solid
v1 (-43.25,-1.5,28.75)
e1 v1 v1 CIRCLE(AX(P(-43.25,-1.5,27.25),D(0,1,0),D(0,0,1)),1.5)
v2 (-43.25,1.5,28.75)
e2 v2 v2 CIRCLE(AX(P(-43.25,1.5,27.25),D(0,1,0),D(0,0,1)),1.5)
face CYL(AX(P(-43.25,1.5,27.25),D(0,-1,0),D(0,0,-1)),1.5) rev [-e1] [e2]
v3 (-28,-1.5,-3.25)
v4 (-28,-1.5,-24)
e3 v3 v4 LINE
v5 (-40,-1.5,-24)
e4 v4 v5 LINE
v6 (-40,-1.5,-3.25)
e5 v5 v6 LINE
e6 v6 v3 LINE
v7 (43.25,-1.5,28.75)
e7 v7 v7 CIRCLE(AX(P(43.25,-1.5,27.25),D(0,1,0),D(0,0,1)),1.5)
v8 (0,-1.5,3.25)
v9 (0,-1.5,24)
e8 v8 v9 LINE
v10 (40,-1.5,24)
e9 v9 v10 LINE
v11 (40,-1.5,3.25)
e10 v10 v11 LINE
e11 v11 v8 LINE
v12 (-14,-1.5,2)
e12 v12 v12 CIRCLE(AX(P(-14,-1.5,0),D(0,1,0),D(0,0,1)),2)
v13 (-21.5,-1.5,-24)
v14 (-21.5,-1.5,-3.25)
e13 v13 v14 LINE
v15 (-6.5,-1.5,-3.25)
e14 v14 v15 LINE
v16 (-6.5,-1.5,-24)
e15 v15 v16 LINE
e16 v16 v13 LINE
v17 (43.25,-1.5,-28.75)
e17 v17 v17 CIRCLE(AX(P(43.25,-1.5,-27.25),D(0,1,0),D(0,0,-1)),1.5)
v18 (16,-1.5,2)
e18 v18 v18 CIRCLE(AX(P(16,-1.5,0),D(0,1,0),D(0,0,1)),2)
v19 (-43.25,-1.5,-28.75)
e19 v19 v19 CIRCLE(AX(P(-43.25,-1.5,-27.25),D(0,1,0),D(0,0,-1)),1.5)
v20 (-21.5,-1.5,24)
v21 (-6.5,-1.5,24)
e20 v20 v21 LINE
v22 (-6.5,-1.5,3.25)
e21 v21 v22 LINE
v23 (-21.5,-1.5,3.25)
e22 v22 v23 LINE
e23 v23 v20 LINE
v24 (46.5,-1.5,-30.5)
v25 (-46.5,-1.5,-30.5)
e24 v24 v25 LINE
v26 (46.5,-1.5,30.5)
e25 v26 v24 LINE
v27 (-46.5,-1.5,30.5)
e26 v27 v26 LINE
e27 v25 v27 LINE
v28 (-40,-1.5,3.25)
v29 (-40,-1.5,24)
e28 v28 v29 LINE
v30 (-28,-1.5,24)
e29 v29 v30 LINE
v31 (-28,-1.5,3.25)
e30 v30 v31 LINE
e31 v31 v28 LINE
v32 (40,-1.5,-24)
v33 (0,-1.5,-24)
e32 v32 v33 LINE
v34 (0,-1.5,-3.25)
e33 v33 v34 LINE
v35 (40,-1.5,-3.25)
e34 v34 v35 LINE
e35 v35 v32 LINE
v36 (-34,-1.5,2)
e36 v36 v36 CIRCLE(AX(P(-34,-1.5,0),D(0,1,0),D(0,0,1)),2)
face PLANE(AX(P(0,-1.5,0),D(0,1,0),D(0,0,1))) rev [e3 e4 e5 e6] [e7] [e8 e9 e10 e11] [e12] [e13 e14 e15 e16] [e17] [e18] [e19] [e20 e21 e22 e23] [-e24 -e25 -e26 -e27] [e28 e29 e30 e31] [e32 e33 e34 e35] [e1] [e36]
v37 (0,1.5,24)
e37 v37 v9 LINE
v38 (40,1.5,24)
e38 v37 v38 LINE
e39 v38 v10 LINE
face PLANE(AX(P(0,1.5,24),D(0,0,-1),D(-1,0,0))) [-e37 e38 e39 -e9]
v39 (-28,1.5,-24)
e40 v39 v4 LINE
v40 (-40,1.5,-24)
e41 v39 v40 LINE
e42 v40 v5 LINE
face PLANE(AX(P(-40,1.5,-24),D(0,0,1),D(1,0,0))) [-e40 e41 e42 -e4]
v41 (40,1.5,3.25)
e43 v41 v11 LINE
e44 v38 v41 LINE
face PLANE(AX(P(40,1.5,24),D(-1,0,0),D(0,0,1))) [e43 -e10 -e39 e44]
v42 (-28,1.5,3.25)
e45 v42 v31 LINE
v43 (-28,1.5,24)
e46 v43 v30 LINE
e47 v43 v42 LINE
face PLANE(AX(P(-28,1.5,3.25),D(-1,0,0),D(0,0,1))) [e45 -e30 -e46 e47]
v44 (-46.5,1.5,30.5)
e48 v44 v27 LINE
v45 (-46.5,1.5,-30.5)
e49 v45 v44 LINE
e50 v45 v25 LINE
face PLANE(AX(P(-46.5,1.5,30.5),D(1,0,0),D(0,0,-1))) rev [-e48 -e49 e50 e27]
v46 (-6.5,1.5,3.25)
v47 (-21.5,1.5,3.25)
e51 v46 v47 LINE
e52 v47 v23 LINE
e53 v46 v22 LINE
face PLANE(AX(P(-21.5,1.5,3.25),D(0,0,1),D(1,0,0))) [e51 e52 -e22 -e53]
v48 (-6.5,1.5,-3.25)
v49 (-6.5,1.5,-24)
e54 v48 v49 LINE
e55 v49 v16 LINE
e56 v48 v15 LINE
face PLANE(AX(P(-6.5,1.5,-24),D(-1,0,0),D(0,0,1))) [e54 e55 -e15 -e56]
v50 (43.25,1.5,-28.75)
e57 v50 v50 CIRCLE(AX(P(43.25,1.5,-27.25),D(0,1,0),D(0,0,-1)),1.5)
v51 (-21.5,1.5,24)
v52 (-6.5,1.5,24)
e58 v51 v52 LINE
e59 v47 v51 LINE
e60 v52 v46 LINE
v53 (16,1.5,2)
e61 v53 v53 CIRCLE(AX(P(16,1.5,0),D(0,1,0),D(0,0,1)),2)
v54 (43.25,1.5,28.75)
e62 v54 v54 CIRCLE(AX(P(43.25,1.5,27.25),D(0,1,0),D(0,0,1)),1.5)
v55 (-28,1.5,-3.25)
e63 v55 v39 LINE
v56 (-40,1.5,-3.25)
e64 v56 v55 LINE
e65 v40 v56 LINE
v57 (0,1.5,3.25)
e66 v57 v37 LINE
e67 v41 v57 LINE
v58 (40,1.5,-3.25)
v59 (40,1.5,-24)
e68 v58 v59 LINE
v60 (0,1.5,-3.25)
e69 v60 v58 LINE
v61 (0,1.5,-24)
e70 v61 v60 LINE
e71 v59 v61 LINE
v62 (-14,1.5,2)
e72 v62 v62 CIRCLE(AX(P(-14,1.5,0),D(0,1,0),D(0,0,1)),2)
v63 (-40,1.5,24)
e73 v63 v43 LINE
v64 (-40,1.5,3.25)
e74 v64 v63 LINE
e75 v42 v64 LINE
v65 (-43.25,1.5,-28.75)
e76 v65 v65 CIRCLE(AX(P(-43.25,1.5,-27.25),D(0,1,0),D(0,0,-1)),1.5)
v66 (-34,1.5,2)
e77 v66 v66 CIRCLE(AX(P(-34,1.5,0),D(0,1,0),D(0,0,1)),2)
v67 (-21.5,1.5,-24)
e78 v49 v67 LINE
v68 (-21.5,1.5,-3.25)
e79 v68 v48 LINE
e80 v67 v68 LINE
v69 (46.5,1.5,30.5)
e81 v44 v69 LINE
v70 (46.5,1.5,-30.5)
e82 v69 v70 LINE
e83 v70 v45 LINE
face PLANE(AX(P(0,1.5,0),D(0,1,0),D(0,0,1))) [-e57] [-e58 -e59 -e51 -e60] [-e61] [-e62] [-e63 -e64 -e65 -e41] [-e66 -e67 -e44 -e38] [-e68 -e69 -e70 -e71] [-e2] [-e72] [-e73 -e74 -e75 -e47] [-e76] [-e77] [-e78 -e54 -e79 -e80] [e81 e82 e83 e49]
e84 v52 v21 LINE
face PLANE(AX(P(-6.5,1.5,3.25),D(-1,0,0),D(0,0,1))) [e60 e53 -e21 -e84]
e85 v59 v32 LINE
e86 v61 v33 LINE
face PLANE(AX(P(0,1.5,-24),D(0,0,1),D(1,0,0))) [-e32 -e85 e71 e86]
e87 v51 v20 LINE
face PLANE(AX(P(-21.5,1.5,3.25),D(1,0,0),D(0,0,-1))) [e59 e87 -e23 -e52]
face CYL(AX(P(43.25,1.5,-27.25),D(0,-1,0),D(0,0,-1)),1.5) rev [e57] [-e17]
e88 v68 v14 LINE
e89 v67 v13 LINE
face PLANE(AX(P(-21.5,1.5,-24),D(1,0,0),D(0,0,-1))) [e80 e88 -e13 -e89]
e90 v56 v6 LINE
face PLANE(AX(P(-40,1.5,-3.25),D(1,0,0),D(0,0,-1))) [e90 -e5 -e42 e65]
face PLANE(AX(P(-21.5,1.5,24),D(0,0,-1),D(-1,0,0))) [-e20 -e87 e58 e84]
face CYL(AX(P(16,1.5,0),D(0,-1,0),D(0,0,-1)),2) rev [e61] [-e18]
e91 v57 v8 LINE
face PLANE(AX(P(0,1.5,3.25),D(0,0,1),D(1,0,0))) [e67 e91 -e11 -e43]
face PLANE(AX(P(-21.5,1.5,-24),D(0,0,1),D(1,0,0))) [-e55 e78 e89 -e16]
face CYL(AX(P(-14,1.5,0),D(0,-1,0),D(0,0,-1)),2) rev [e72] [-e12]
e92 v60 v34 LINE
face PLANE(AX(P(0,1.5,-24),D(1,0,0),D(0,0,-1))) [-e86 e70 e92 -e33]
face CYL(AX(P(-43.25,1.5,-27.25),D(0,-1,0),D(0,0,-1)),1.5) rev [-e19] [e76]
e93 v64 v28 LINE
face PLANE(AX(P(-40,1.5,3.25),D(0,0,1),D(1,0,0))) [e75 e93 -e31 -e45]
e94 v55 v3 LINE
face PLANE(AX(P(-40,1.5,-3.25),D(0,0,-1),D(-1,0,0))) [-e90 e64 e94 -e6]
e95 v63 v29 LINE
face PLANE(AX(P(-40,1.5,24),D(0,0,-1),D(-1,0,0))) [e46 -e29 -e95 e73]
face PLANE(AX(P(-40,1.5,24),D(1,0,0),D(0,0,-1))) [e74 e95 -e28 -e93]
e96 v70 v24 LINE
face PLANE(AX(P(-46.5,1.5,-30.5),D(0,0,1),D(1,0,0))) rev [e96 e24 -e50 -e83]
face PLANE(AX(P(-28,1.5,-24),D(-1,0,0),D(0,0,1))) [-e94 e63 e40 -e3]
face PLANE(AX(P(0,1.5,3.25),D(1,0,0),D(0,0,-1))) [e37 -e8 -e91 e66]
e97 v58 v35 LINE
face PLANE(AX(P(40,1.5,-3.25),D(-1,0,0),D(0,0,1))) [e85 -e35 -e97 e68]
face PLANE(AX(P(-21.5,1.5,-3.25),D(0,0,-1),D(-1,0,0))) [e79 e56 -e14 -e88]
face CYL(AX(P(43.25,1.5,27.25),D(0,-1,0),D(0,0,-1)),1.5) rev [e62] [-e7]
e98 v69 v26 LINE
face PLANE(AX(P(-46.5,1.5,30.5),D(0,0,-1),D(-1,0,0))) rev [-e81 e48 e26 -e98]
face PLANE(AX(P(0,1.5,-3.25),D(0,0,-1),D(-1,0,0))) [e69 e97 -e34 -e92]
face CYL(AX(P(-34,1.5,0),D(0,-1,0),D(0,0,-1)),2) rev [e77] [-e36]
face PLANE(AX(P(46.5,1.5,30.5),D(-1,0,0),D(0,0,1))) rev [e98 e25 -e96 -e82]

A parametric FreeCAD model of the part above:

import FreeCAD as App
import Part
import Sketcher

V = App.Vector

doc = App.newDocument("Part")
body = doc.addObject("PartDesign::Body", "Body")

# Sketch on XZ plane
sketch1 = doc.addObject("Sketcher::SketchObject", "Sketch")
body.addObject(sketch1)
sketch1.AttachmentSupport = (doc.XZ_Plane, [""])
sketch1.MapMode = "FlatFace"
sketch1.addGeometry(Part.LineSegment(V(-46.5, -30.5, 0), V(-46.5, 30.5, 0)), False)
sketch1.addGeometry(Part.LineSegment(V(-46.5, 30.5, 0), V(46.5, 30.5, 0)), False)
sketch1.addGeometry(Part.LineSegment(V(46.5, 30.5, 0), V(46.5, -30.5, 0)), False)
sketch1.addGeometry(Part.LineSegment(V(46.5, -30.5, 0), V(-46.5, -30.5, 0)), False)
sketch1.addGeometry(Part.Circle(V(-43.2, 27.2, 0), V(0, 0, 1), 1.5), False)
sketch1.addGeometry(Part.LineSegment(V(-28, 24, 0), V(-40, 24, 0)), False)
sketch1.addGeometry(Part.LineSegment(V(-40, 24, 0), V(-40, 3.2, 0)), False)
sketch1.addGeometry(Part.LineSegment(V(-40, 3.2, 0), V(-28, 3.2, 0)), False)
sketch1.addGeometry(Part.LineSegment(V(-28, 3.2, 0), V(-28, 24, 0)), False)
sketch1.addGeometry(Part.LineSegment(V(-6.5, 24, 0), V(-21.5, 24, 0)), False)
sketch1.addGeometry(Part.LineSegment(V(-21.5, 24, 0), V(-21.5, 3.2, 0)), False)
sketch1.addGeometry(Part.LineSegment(V(-21.5, 3.2, 0), V(-6.5, 3.2, 0)), False)
sketch1.addGeometry(Part.LineSegment(V(-6.5, 3.2, 0), V(-6.5, 24, 0)), False)
sketch1.addGeometry(Part.Circle(V(43.2, 27.2, 0), V(0, 0, 1), 1.5), False)
sketch1.addGeometry(Part.LineSegment(V(40, 24, 0), V(0, 24, 0)), False)
sketch1.addGeometry(Part.LineSegment(V(0, 24, 0), V(0, 3.2, 0)), False)
sketch1.addGeometry(Part.LineSegment(V(0, 3.2, 0), V(40, 3.2, 0)), False)
sketch1.addGeometry(Part.LineSegment(V(40, 3.2, 0), V(40, 24, 0)), False)
sketch1.addGeometry(Part.Circle(V(-34, 0, 0), V(0, 0, 1), 2), False)
sketch1.addGeometry(Part.LineSegment(V(-28, -3.2, 0), V(-40, -3.2, 0)), False)
sketch1.addGeometry(Part.LineSegment(V(-40, -3.2, 0), V(-40, -24, 0)), False)
sketch1.addGeometry(Part.LineSegment(V(-40, -24, 0), V(-28, -24, 0)), False)
sketch1.addGeometry(Part.LineSegment(V(-28, -24, 0), V(-28, -3.2, 0)), False)
sketch1.addGeometry(Part.Circle(V(-14, 0, 0), V(0, 0, 1), 2), False)
sketch1.addGeometry(Part.LineSegment(V(-6.5, -3.2, 0), V(-21.5, -3.2, 0)), False)
sketch1.addGeometry(Part.LineSegment(V(-21.5, -3.2, 0), V(-21.5, -24, 0)), False)
sketch1.addGeometry(Part.LineSegment(V(-21.5, -24, 0), V(-6.5, -24, 0)), False)
sketch1.addGeometry(Part.LineSegment(V(-6.5, -24, 0), V(-6.5, -3.2, 0)), False)
sketch1.addGeometry(Part.Circle(V(-43.2, -27.2, 0), V(0, 0, 1), 1.5), False)
sketch1.addGeometry(Part.Circle(V(16, 0, 0), V(0, 0, 1), 2), False)
sketch1.addGeometry(Part.LineSegment(V(40, -3.2, 0), V(0, -3.2, 0)), False)
sketch1.addGeometry(Part.LineSegment(V(0, -3.2, 0), V(0, -24, 0)), False)
sketch1.addGeometry(Part.LineSegment(V(0, -24, 0), V(40, -24, 0)), False)
sketch1.addGeometry(Part.LineSegment(V(40, -24, 0), V(40, -3.2, 0)), False)
sketch1.addGeometry(Part.Circle(V(43.2, -27.2, 0), V(0, 0, 1), 1.5), False)
sketch1.addConstraint(Sketcher.Constraint("Coincident", 0, 2, 1, 1))
sketch1.addConstraint(Sketcher.Constraint("Coincident", 1, 2, 2, 1))
sketch1.addConstraint(Sketcher.Constraint("Coincident", 2, 2, 3, 1))
sketch1.addConstraint(Sketcher.Constraint("Coincident", 3, 2, 0, 1))
sketch1.addConstraint(Sketcher.Constraint("Coincident", 5, 2, 6, 1))
sketch1.addConstraint(Sketcher.Constraint("Coincident", 6, 2, 7, 1))
sketch1.addConstraint(Sketcher.Constraint("Coincident", 7, 2, 8, 1))
sketch1.addConstraint(Sketcher.Constraint("Coincident", 8, 2, 5, 1))
sketch1.addConstraint(Sketcher.Constraint("Coincident", 9, 2, 10, 1))
sketch1.addConstraint(Sketcher.Constraint("Coincident", 10, 2, 11, 1))
sketch1.addConstraint(Sketcher.Constraint("Coincident", 11, 2, 12, 1))
sketch1.addConstraint(Sketcher.Constraint("Coincident", 12, 2, 9, 1))
sketch1.addConstraint(Sketcher.Constraint("Coincident", 14, 2, 15, 1))
sketch1.addConstraint(Sketcher.Constraint("Coincident", 15, 2, 16, 1))
sketch1.addConstraint(Sketcher.Constraint("Coincident", 16, 2, 17, 1))
sketch1.addConstraint(Sketcher.Constraint("Coincident", 17, 2, 14, 1))
sketch1.addConstraint(Sketcher.Constraint("Coincident", 19, 2, 20, 1))
sketch1.addConstraint(Sketcher.Constraint("Coincident", 20, 2, 21, 1))
sketch1.addConstraint(Sketcher.Constraint("Coincident", 21, 2, 22, 1))
sketch1.addConstraint(Sketcher.Constraint("Coincident", 22, 2, 19, 1))
sketch1.addConstraint(Sketcher.Constraint("Coincident", 24, 2, 25, 1))
sketch1.addConstraint(Sketcher.Constraint("Coincident", 25, 2, 26, 1))
sketch1.addConstraint(Sketcher.Constraint("Coincident", 26, 2, 27, 1))
sketch1.addConstraint(Sketcher.Constraint("Coincident", 27, 2, 24, 1))
sketch1.addConstraint(Sketcher.Constraint("Coincident", 30, 2, 31, 1))
sketch1.addConstraint(Sketcher.Constraint("Coincident", 31, 2, 32, 1))
sketch1.addConstraint(Sketcher.Constraint("Coincident", 32, 2, 33, 1))
sketch1.addConstraint(Sketcher.Constraint("Coincident", 33, 2, 30, 1))
sketch1.addConstraint(Sketcher.Constraint("Vertical", 0))
sketch1.addConstraint(Sketcher.Constraint("Horizontal", 1))
sketch1.addConstraint(Sketcher.Constraint("Vertical", 2))
sketch1.addConstraint(Sketcher.Constraint("Horizontal", 3))
sketch1.addConstraint(Sketcher.Constraint("Horizontal", 5))
sketch1.addConstraint(Sketcher.Constraint("Vertical", 6))
sketch1.addConstraint(Sketcher.Constraint("Horizontal", 7))
sketch1.addConstraint(Sketcher.Constraint("Vertical", 8))
sketch1.addConstraint(Sketcher.Constraint("Horizontal", 9))
sketch1.addConstraint(Sketcher.Constraint("Vertical", 10))
sketch1.addConstraint(Sketcher.Constraint("Horizontal", 11))
sketch1.addConstraint(Sketcher.Constraint("Vertical", 12))
sketch1.addConstraint(Sketcher.Constraint("Horizontal", 14))
sketch1.addConstraint(Sketcher.Constraint("Vertical", 15))
sketch1.addConstraint(Sketcher.Constraint("Horizontal", 16))
sketch1.addConstraint(Sketcher.Constraint("Vertical", 17))
sketch1.addConstraint(Sketcher.Constraint("Horizontal", 19))
sketch1.addConstraint(Sketcher.Constraint("Vertical", 20))
sketch1.addConstraint(Sketcher.Constraint("Horizontal", 21))
sketch1.addConstraint(Sketcher.Constraint("Vertical", 22))
sketch1.addConstraint(Sketcher.Constraint("Horizontal", 24))
sketch1.addConstraint(Sketcher.Constraint("Vertical", 25))
sketch1.addConstraint(Sketcher.Constraint("Horizontal", 26))
sketch1.addConstraint(Sketcher.Constraint("Vertical", 27))
sketch1.addConstraint(Sketcher.Constraint("Horizontal", 30))
sketch1.addConstraint(Sketcher.Constraint("Vertical", 31))
sketch1.addConstraint(Sketcher.Constraint("Horizontal", 32))
sketch1.addConstraint(Sketcher.Constraint("Vertical", 33))
sketch1.addConstraint(Sketcher.Constraint("Equal", 4, 13))
sketch1.addConstraint(Sketcher.Constraint("Equal", 18, 23))
sketch1.addConstraint(Sketcher.Constraint("Equal", 13, 28))
sketch1.addConstraint(Sketcher.Constraint("Equal", 23, 29))
sketch1.addConstraint(Sketcher.Constraint("Equal", 28, 34))
sketch1.addConstraint(Sketcher.Constraint("Symmetric", 13, 3, 28, 3, -1, 1))
sketch1.addConstraint(Sketcher.Constraint("Symmetric", 4, 3, 34, 3, -1, 1))
sketch1.addConstraint(Sketcher.Constraint("Symmetric", 0, 2, 2, 2, -1, 1))
sketch1.addConstraint(Sketcher.Constraint("Symmetric", 16, 2, 19, 2, -1, 1))
sketch1.addConstraint(Sketcher.Constraint("Symmetric", 15, 2, 30, 2, -1, 1))
sketch1.addConstraint(Sketcher.Constraint("Symmetric", 5, 2, 32, 2, -1, 1))
sketch1.addConstraint(Sketcher.Constraint("Symmetric", 4, 3, 13, 3, -2))
sketch1.addConstraint(Sketcher.Constraint("Symmetric", 6, 2, 16, 2, -2))
sketch1.addConstraint(Sketcher.Constraint("Symmetric", 8, 2, 21, 2, -1))
sketch1.addConstraint(Sketcher.Constraint("Symmetric", 10, 2, 24, 2, -1))
sketch1.addConstraint(Sketcher.Constraint("Symmetric", 12, 2, 26, 2, -1))
sketch1.addConstraint(Sketcher.Constraint("Symmetric", 14, 2, 31, 2, -1))
sketch1.addConstraint(Sketcher.Constraint("PointOnObject", 18, 3, -1))
sketch1.addConstraint(Sketcher.Constraint("PointOnObject", 23, 3, -1))
sketch1.addConstraint(Sketcher.Constraint("PointOnObject", 29, 3, -1))
sketch1.addConstraint(Sketcher.Constraint("Horizontal", 8, 2, 9, 2))
sketch1.addConstraint(Sketcher.Constraint("Horizontal", 7, 2, 10, 2))
sketch1.addConstraint(Sketcher.Constraint("Diameter", 4, 3.0))
sketch1.addConstraint(Sketcher.Constraint("Diameter", 18, 4.0))
sketch1.addConstraint(Sketcher.Constraint("DistanceX", 1, 1, 1, 2, 93.0))
sketch1.addConstraint(Sketcher.Constraint("DistanceX", 5, 2, 5, 1, 12.0))
sketch1.addConstraint(Sketcher.Constraint("DistanceX", 9, 2, 9, 1, 15.0))
sketch1.addConstraint(Sketcher.Constraint("DistanceX", 14, 2, 14, 1, 40.0))
sketch1.addConstraint(Sketcher.Constraint("DistanceY", 0, 1, 0, 2, 61.0))
sketch1.addConstraint(Sketcher.Constraint("DistanceX", 18, 3, -1, 1, 34.0))
sketch1.addConstraint(Sketcher.Constraint("DistanceX", 23, 3, -1, 1, 14.0))
sketch1.addConstraint(Sketcher.Constraint("DistanceX", -1, 1, 29, 3, 16.0))
sketch1.addConstraint(Sketcher.Constraint("DistanceY", -1, 1, 5, 2, 24.0))
sketch1.addConstraint(Sketcher.Constraint("DistanceY", 6, 2, 4, 3, 24.0))
sketch1.addConstraint(Sketcher.Constraint("DistanceY", 6, 2, 6, 1, 20.75))
sketch1.addConstraint(Sketcher.Constraint("DistanceX", 9, 2, -1, 1, 21.5))
sketch1.addConstraint(Sketcher.Constraint("DistanceX", 4, 3, 13, 3, 86.5))
pad1 = doc.addObject("PartDesign::Pad", "Pad")
body.addObject(pad1)
pad1.Profile = sketch1
pad1.Length = 3
pad1.Midplane = True

doc.recompute()
